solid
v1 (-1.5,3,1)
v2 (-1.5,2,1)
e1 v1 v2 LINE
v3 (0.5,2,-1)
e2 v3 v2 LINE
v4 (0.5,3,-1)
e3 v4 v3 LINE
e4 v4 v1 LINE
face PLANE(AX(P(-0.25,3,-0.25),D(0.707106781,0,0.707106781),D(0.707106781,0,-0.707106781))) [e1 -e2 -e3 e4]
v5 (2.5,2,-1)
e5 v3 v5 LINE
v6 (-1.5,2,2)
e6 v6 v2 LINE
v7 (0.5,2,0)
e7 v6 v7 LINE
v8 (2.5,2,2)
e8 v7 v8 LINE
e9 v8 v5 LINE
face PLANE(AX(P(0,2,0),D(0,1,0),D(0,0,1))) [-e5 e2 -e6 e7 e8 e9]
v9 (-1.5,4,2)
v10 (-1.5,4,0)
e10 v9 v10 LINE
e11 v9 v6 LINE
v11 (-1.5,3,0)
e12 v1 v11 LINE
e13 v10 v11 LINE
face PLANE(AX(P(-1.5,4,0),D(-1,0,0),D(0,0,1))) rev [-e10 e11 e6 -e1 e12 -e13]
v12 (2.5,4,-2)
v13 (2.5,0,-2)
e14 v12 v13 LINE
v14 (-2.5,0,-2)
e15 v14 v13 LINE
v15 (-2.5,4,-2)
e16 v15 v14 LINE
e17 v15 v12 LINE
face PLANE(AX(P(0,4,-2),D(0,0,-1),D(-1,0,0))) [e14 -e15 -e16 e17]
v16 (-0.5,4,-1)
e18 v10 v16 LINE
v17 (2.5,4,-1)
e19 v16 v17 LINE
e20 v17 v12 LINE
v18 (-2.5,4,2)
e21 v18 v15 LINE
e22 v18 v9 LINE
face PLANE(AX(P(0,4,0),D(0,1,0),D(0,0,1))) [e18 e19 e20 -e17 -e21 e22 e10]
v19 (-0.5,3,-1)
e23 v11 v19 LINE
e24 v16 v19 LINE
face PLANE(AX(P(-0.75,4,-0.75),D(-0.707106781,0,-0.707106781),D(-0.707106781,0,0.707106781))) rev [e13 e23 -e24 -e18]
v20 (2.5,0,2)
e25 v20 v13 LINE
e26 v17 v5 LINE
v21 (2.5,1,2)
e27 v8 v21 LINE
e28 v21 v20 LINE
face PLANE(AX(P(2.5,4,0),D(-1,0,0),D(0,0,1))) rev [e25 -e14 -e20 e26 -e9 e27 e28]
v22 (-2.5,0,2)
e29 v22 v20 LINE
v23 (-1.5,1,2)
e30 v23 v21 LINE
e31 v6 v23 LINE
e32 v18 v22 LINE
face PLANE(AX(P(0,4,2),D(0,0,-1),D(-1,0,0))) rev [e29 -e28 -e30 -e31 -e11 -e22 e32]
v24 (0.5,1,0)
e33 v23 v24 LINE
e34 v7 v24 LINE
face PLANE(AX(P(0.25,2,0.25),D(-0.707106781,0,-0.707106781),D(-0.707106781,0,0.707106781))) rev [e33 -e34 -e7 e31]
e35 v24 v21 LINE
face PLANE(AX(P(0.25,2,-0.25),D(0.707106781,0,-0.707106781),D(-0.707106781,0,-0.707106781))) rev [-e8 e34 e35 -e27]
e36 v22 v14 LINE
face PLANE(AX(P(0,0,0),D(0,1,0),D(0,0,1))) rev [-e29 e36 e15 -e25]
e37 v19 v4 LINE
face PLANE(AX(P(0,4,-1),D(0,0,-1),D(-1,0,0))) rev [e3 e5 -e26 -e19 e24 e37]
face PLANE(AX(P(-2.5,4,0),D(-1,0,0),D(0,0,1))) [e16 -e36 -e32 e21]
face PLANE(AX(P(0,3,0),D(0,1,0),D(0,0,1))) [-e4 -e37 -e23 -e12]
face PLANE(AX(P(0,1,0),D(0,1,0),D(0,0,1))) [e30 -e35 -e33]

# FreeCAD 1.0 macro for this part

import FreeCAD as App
import Part
import Sketcher
from FreeCAD import Vector

doc = App.newDocument("Part")
body = doc.addObject("PartDesign::Body", "Body")

sketch1 = body.newObject("Sketcher::SketchObject", "Sketch")
sketch1.AttachmentSupport = (doc.getObject("XZ_Plane"), [""])
sketch1.MapMode = "FlatFace"
sketch1.addGeometry([
    Part.LineSegment(Vector(-2.5, 2, 0), Vector(-1.5, 2, 0)),
    Part.LineSegment(Vector(-1.5, 2, 0), Vector(-1.5, 0, 0)),
    Part.LineSegment(Vector(-1.5, 0, 0), Vector(-0.5, -1, 0)),
    Part.LineSegment(Vector(-0.5, -1, 0), Vector(2.5, -1, 0)),
    Part.LineSegment(Vector(2.5, -1, 0), Vector(2.5, -2, 0)),
    Part.LineSegment(Vector(2.5, -2, 0), Vector(-2.5, -2, 0)),
    Part.LineSegment(Vector(-2.5, -2, 0), Vector(-2.5, 2, 0)),
], False)
sketch1.addConstraint([
    Sketcher.Constraint("Coincident", 0, 2, 1, 1),
    Sketcher.Constraint("Coincident", 1, 2, 2, 1),
    Sketcher.Constraint("Coincident", 2, 2, 3, 1),
    Sketcher.Constraint("Coincident", 3, 2, 4, 1),
    Sketcher.Constraint("Coincident", 4, 2, 5, 1),
    Sketcher.Constraint("Coincident", 5, 2, 6, 1),
    Sketcher.Constraint("Coincident", 6, 2, 0, 1),
    Sketcher.Constraint("Horizontal", 0),
    Sketcher.Constraint("Vertical", 1),
    Sketcher.Constraint("Horizontal", 3),
    Sketcher.Constraint("Vertical", 4),
    Sketcher.Constraint("Horizontal", 5),
    Sketcher.Constraint("Vertical", 6),
    Sketcher.Constraint("Symmetric", 4, 2, 6, 2, -1, 1),
    Sketcher.Constraint("PointOnObject", 1, 2, -1),
    Sketcher.Constraint("Equal", 0, 4),
    Sketcher.Constraint("DistanceX", 0, 1, 0, 2, 1.0),
    Sketcher.Constraint("DistanceX", 3, 1, 3, 2, 3.0),
    Sketcher.Constraint("DistanceX", 5, 2, 5, 1, 5.0),
    Sketcher.Constraint("DistanceY", 1, 2, 1, 1, 2.0),
])
pad1 = body.newObject("PartDesign::Pad", "Pad")
pad1.Profile = sketch1
pad1.Length = 4
pad1.Reversed = True

sketch2 = body.newObject("Sketcher::SketchObject", "Sketch001")
sketch2.AttachmentSupport = (doc.getObject("XZ_Plane"), [""])
sketch2.MapMode = "FlatFace"
sketch2.addGeometry([
    Part.LineSegment(Vector(-1.5, 0, 0), Vector(-1.5, 1, 0)),
    Part.LineSegment(Vector(-1.5, 1, 0), Vector(0.5, -1, 0)),
    Part.LineSegment(Vector(0.5, -1, 0), Vector(-0.5, -1, 0)),
    Part.LineSegment(Vector(-0.5, -1, 0), Vector(-1.5, 0, 0)),
], False)
sketch2.addConstraint([
    Sketcher.Constraint("Coincident", 0, 2, 1, 1),
    Sketcher.Constraint("Coincident", 1, 2, 2, 1),
    Sketcher.Constraint("Coincident", 2, 2, 3, 1),
    Sketcher.Constraint("Coincident", 3, 2, 0, 1),
    Sketcher.Constraint("Vertical", 0),
    Sketcher.Constraint("Horizontal", 2),
    Sketcher.Constraint("PointOnObject", 3, 2, -1),
    Sketcher.Constraint("Parallel", 1, 3),
    Sketcher.Constraint("Equal", 2, 0),
    Sketcher.Constraint("DistanceX", 2, 2, 2, 1, 1.0),
    Sketcher.Constraint("DistanceY", 1, 2, -1, 1, 1.0),
    Sketcher.Constraint("DistanceX", 0, 2, -1, 1, 1.5),
])
pad2 = body.newObject("PartDesign::Pad", "Pad001")
pad2.Profile = sketch2
pad2.Length = 3
pad2.Reversed = True

sketch3 = body.newObject("Sketcher::SketchObject", "Sketch002")
sketch3.AttachmentSupport = (doc.getObject("XZ_Plane"), [""])
sketch3.MapMode = "FlatFace"
sketch3.addGeometry([
    Part.LineSegment(Vector(-1.5, 1, 0), Vector(-1.5, 2, 0)),
    Part.LineSegment(Vector(-1.5, 2, 0), Vector(0.5, 0, 0)),
    Part.LineSegment(Vector(0.5, 0, 0), Vector(2.5, 2, 0)),
    Part.LineSegment(Vector(2.5, 2, 0), Vector(2.5, -1, 0)),
    Part.LineSegment(Vector(2.5, -1, 0), Vector(0.5, -1, 0)),
    Part.LineSegment(Vector(0.5, -1, 0), Vector(-1.5, 1, 0)),
], False)
sketch3.addConstraint([
    Sketcher.Constraint("Coincident", 0, 2, 1, 1),
    Sketcher.Constraint("Coincident", 1, 2, 2, 1),
    Sketcher.Constraint("Coincident", 2, 2, 3, 1),
    Sketcher.Constraint("Coincident", 3, 2, 4, 1),
    Sketcher.Constraint("Coincident", 4, 2, 5, 1),
    Sketcher.Constraint("Coincident", 5, 2, 0, 1),
    Sketcher.Constraint("Vertical", 0),
    Sketcher.Constraint("Vertical", 3),
    Sketcher.Constraint("Horizontal", 4),
    Sketcher.Constraint("PointOnObject", 1, 2, -1),
    Sketcher.Constraint("Perpendicular", 1, 2),
    Sketcher.Constraint("Perpendicular", 2, 5),
    Sketcher.Constraint("Horizontal", 0, 2, 2, 2),
    Sketcher.Constraint("Vertical", 1, 2, 4, 2),
    Sketcher.Constraint("Equal", 1, 2),
    Sketcher.Constraint("DistanceX", 4, 2, 4, 1, 2.0),
    Sketcher.Constraint("DistanceY", 0, 1, 0, 2, 1.0),
    Sketcher.Constraint("DistanceX", 0, 2, -1, 1, 1.5),
])
pad3 = body.newObject("PartDesign::Pad", "Pad002")
pad3.Profile = sketch3
pad3.Length = 2
pad3.Reversed = True

sketch4 = body.newObject("Sketcher::SketchObject", "Sketch003")
sketch4.AttachmentSupport = (doc.getObject("XZ_Plane"), [""])
sketch4.MapMode = "FlatFace"
sketch4.addGeometry([
    Part.LineSegment(Vector(0.5, 0, 0), Vector(-1.5, 2, 0)),
    Part.LineSegment(Vector(-1.5, 2, 0), Vector(2.5, 2, 0)),
    Part.LineSegment(Vector(2.5, 2, 0), Vector(0.5, 0, 0)),
], False)
sketch4.addConstraint([
    Sketcher.Constraint("Coincident", 0, 2, 1, 1),
    Sketcher.Constraint("Coincident", 1, 2, 2, 1),
    Sketcher.Constraint("Coincident", 2, 2, 0, 1),
    Sketcher.Constraint("Horizontal", 1),
    Sketcher.Constraint("PointOnObject", 2, 2, -1),
    Sketcher.Constraint("Perpendicular", 0, 2),
    Sketcher.Constraint("Equal", 0, 2),
    Sketcher.Constraint("DistanceX", 1, 1, 1, 2, 4.0),
    Sketcher.Constraint("DistanceX", 0, 2, -1, 1, 1.5),
])
pad4 = body.newObject("PartDesign::Pad", "Pad003")
pad4.Profile = sketch4
pad4.Length = 1
pad4.Reversed = True

doc.recompute()
